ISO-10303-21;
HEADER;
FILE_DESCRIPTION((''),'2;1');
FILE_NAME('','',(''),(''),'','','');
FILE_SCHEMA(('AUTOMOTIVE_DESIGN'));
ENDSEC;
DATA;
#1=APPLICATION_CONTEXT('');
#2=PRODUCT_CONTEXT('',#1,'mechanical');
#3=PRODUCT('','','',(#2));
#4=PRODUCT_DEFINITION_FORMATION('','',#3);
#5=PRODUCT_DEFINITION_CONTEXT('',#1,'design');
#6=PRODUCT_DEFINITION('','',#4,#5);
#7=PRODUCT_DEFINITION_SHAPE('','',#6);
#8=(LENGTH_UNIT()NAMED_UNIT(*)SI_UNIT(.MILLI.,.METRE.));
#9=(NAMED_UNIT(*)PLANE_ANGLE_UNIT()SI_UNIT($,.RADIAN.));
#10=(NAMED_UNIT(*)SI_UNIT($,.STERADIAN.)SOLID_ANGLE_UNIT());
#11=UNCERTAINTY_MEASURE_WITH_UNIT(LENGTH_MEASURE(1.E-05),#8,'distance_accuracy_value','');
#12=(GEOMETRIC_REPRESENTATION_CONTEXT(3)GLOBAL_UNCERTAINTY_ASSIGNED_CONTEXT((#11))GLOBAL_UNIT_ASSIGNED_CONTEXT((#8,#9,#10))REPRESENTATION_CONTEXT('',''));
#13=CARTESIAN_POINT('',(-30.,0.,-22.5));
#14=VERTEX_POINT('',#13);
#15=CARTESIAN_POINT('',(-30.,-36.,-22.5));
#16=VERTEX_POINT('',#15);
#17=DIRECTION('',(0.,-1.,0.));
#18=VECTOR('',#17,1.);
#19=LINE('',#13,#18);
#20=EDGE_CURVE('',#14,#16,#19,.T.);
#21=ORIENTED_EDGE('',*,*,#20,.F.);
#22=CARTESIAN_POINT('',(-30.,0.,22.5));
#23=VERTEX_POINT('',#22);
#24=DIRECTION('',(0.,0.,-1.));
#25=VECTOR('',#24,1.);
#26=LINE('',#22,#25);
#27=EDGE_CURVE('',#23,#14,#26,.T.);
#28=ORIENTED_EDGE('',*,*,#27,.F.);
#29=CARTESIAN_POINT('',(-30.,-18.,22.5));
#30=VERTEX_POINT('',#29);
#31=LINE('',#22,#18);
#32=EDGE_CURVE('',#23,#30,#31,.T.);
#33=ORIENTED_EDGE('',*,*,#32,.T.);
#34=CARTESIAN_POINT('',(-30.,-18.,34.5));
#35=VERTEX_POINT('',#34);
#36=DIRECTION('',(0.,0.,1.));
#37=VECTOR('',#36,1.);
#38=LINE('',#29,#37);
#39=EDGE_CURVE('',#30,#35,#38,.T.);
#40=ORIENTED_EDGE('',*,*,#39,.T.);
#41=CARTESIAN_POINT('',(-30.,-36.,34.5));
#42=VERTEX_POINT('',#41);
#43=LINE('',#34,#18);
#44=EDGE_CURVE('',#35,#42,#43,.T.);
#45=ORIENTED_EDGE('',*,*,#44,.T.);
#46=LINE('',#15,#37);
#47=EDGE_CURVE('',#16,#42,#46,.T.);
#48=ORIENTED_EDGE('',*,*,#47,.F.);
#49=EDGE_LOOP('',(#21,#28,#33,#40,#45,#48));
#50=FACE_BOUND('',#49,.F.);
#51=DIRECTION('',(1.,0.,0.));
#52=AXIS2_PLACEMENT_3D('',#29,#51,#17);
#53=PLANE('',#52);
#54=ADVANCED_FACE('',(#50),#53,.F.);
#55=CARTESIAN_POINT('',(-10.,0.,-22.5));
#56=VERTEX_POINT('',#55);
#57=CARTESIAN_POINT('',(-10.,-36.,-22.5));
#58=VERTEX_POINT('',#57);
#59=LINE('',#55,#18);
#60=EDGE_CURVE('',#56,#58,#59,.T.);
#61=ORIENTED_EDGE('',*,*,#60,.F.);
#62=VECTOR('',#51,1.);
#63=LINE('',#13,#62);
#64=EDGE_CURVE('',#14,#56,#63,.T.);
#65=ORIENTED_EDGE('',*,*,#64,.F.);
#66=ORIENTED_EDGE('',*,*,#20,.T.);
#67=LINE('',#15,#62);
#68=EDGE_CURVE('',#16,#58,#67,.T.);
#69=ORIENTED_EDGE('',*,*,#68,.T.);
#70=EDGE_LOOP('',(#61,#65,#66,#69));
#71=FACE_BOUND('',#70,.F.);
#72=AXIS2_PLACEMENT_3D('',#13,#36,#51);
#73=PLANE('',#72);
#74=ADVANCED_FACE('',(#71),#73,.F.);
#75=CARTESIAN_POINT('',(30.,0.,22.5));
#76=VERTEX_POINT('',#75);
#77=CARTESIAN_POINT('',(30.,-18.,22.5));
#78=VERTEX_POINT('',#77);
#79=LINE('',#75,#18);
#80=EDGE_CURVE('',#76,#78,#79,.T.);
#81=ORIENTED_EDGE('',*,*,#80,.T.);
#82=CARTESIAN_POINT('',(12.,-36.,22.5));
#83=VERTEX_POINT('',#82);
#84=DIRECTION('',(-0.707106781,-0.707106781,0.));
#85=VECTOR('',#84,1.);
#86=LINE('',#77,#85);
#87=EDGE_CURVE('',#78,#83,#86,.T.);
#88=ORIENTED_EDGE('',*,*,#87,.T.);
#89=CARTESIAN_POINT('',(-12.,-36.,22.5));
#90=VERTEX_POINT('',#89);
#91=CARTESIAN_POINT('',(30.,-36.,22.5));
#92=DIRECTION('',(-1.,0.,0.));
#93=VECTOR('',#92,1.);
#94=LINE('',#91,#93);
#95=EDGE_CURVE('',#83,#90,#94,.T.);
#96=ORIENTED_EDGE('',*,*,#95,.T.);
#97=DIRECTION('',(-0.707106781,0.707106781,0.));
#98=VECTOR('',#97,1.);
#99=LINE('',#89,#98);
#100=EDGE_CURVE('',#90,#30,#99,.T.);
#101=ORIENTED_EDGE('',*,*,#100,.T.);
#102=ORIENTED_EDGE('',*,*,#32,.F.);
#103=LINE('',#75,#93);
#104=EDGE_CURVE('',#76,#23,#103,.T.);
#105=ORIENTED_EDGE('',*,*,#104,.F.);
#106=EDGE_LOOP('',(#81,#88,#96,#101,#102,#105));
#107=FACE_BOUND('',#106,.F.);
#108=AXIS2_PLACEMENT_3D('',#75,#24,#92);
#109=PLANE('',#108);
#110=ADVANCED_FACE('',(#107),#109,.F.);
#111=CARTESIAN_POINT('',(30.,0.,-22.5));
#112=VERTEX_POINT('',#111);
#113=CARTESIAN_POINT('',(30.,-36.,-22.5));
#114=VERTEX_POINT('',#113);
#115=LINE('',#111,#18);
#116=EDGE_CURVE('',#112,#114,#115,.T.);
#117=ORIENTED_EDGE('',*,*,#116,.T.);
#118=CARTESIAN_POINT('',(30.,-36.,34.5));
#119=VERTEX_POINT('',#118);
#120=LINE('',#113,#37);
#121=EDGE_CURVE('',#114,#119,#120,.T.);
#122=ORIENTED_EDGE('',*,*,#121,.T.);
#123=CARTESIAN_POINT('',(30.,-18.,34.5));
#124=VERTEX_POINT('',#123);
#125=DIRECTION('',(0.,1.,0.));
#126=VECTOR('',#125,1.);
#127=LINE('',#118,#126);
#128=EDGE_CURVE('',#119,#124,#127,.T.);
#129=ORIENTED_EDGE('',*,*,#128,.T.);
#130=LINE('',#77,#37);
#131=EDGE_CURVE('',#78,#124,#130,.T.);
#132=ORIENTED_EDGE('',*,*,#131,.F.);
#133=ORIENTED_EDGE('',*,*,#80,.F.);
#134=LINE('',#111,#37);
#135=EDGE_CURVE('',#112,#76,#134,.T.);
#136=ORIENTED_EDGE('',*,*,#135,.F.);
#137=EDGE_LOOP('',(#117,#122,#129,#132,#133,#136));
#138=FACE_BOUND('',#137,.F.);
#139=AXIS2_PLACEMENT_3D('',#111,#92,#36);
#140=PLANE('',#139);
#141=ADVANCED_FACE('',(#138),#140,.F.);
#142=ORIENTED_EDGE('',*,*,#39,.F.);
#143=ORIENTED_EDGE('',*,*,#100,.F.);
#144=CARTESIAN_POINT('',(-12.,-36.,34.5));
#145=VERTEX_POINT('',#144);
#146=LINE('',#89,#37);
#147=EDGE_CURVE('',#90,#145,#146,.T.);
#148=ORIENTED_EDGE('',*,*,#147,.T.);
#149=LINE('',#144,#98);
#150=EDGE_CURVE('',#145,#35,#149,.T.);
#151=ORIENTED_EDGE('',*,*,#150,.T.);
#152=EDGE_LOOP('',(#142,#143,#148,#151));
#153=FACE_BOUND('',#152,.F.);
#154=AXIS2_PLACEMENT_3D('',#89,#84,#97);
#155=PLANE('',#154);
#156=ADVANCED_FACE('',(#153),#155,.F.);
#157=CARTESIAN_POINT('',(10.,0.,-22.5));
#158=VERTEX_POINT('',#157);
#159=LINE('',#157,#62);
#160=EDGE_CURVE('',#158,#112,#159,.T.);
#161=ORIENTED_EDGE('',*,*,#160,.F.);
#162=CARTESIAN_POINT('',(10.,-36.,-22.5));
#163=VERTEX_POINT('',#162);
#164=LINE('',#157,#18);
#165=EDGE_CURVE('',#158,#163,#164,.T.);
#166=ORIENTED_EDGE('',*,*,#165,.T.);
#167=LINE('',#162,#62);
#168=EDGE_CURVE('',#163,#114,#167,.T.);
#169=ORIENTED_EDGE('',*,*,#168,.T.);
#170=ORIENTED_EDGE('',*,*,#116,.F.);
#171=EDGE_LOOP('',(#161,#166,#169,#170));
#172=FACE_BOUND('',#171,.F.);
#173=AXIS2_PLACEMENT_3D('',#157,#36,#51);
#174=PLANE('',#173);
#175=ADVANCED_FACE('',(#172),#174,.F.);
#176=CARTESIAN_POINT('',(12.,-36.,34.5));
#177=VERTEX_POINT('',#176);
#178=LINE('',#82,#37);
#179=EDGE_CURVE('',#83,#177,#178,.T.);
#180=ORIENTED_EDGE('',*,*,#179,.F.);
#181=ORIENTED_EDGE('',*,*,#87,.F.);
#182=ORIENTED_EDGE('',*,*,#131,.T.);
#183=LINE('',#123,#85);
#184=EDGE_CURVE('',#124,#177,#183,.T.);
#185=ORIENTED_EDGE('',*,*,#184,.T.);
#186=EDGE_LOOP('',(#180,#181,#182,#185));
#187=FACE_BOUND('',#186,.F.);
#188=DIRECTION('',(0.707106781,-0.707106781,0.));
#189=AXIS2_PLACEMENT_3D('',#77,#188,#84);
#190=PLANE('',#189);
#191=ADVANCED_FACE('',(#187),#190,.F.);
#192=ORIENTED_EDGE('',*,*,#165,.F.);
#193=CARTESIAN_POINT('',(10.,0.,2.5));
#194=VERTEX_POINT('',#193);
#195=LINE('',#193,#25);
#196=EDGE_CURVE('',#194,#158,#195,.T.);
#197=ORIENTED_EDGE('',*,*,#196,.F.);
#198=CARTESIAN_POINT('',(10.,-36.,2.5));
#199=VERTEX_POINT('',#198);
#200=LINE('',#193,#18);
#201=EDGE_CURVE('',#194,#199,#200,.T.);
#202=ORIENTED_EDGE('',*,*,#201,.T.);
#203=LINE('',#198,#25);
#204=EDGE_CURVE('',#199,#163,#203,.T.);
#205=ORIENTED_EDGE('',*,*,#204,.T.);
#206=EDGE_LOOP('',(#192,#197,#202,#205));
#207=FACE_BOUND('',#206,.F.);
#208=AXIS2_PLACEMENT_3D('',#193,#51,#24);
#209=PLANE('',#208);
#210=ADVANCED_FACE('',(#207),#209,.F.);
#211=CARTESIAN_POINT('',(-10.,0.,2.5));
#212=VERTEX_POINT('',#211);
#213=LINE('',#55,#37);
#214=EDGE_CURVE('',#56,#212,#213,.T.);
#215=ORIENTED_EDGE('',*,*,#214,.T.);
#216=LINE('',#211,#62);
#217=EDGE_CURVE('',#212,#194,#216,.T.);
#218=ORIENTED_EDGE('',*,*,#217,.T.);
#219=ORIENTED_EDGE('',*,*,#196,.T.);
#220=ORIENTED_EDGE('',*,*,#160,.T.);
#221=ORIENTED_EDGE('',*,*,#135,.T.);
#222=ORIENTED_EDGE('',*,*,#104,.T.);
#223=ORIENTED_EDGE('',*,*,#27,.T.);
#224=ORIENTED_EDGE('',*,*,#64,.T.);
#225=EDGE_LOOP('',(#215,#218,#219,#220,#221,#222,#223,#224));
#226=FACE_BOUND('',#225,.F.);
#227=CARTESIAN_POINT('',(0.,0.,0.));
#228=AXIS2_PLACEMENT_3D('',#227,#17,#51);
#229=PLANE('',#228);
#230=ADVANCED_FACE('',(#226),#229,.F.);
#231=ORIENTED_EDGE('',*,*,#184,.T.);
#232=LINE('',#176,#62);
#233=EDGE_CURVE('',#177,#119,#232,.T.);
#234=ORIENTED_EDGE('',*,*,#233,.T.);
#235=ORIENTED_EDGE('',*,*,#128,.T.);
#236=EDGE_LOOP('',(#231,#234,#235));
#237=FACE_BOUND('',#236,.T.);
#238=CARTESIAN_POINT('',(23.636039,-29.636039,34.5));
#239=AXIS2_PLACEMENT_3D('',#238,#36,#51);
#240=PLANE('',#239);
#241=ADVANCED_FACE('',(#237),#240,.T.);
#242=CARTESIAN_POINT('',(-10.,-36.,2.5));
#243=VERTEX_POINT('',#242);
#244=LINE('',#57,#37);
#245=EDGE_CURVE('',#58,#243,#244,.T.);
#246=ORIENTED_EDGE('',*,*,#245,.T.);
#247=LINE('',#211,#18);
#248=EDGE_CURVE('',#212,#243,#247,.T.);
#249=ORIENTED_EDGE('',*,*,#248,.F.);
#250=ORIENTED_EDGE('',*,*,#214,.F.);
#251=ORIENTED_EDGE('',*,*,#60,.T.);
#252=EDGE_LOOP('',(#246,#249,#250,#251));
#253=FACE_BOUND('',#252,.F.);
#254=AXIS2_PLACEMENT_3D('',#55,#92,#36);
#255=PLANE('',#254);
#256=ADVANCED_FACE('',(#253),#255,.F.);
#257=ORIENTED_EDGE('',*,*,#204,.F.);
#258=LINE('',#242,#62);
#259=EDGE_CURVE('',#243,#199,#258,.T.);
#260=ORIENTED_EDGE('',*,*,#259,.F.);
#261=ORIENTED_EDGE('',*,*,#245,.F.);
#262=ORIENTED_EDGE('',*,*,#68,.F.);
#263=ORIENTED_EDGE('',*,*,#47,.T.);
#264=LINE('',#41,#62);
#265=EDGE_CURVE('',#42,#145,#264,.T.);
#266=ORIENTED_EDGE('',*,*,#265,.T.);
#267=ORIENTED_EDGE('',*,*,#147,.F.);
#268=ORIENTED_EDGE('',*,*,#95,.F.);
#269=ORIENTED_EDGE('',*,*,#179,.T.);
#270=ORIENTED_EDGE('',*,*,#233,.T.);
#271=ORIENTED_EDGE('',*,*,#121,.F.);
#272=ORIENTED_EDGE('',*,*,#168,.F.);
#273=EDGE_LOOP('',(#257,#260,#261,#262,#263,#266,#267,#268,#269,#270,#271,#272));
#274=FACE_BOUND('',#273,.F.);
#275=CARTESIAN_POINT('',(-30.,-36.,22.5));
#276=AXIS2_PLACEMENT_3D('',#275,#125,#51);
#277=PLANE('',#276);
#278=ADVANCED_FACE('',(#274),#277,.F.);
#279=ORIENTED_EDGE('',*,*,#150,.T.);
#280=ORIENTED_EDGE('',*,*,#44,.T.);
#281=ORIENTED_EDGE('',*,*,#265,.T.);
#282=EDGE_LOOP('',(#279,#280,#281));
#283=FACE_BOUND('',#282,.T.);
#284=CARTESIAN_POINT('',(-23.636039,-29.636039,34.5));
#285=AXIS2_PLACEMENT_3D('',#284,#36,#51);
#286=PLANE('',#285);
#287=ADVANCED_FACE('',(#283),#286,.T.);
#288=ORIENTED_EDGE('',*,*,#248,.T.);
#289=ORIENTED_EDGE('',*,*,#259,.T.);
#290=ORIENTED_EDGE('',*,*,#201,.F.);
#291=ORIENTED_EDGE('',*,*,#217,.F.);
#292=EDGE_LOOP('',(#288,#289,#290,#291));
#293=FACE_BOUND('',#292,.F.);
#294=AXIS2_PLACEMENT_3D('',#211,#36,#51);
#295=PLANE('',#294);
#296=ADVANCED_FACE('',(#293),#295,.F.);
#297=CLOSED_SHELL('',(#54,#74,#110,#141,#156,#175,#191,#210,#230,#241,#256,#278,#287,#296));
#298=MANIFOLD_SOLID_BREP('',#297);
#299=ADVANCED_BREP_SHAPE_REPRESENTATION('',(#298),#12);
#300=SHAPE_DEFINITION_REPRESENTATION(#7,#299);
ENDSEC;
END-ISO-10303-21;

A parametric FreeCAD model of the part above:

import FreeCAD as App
import Part
import Sketcher
from FreeCAD import Vector


def add_polygon(sketch, points):
    """Adds a closed chain of lines whose ends are joined by coincident constraints."""
    first, n = sketch.GeometryCount, len(points)
    for a, b in zip(points, points[1:] + points[:1]):
        sketch.addGeometry(Part.LineSegment(App.Vector(*a, 0), App.Vector(*b, 0)), False)
    for i in range(n):
        sketch.addConstraint(Sketcher.Constraint("Coincident", first + i, 2, first + (i + 1) % n, 1))

doc = App.newDocument("Part")
body = doc.addObject("PartDesign::Body", "Body")

# Sketch on XZ plane
sketch1 = body.newObject("Sketcher::SketchObject", "Sketch")
sketch1.AttachmentSupport = (doc.getObject("XZ_Plane"), [""])
sketch1.MapMode = "FlatFace"
add_polygon(sketch1, [(30, -22.5), (30, 22.5), (-30, 22.5), (-30, -22.5), (-10, -22.5), (-10, 2.5), (10, 2.5), (10, -22.5)])  # lines 0-7
sketch1.addConstraint(Sketcher.Constraint("Vertical", 0))
sketch1.addConstraint(Sketcher.Constraint("Horizontal", 1))
sketch1.addConstraint(Sketcher.Constraint("Vertical", 2))
sketch1.addConstraint(Sketcher.Constraint("Horizontal", 3))
sketch1.addConstraint(Sketcher.Constraint("Vertical", 4))
sketch1.addConstraint(Sketcher.Constraint("Horizontal", 5))
sketch1.addConstraint(Sketcher.Constraint("Vertical", 6))
sketch1.addConstraint(Sketcher.Constraint("Horizontal", 7))
sketch1.addConstraint(Sketcher.Constraint("Symmetric", 0, 2, 2, 2, -1, 1))
sketch1.addConstraint(Sketcher.Constraint("Symmetric", 3, 2, 6, 2, -2))
sketch1.addConstraint(Sketcher.Constraint("Equal", 3, 5))
sketch1.addConstraint(Sketcher.Constraint("DistanceX", 1, 2, 1, 1, 60.0))
sketch1.addConstraint(Sketcher.Constraint("DistanceY", 0, 1, 0, 2, 45.0))
sketch1.addConstraint(Sketcher.Constraint("DistanceY", 4, 1, 4, 2, 25.0))
pad1 = body.newObject("PartDesign::Pad", "Pad")
pad1.Profile = sketch1
pad1.Length = 36

# Sketch on XY plane
sketch2 = body.newObject("Sketcher::SketchObject", "Sketch001")
sketch2.AttachmentSupport = (doc.getObject("XY_Plane"), [""])
sketch2.MapMode = "FlatFace"
sketch2.AttachmentOffset = App.Placement(Vector(0, 0, 22.5), App.Rotation())
add_polygon(sketch2, [(-30, -18), (-30, -36), (-12, -36)])  # lines 0-2
add_polygon(sketch2, [(30, -18), (12, -36), (30, -36)])  # lines 3-5
sketch2.addConstraint(Sketcher.Constraint("Vertical", 0))
sketch2.addConstraint(Sketcher.Constraint("Horizontal", 1))
sketch2.addConstraint(Sketcher.Constraint("Horizontal", 4))
sketch2.addConstraint(Sketcher.Constraint("Vertical", 5))
sketch2.addConstraint(Sketcher.Constraint("Symmetric", 1, 2, 3, 2, -2))
sketch2.addConstraint(Sketcher.Constraint("Symmetric", 2, 2, 5, 2, -2))
sketch2.addConstraint(Sketcher.Constraint("Perpendicular", 2, 3))
sketch2.addConstraint(Sketcher.Constraint("DistanceX", 1, 1, 1, 2, 18.0))
sketch2.addConstraint(Sketcher.Constraint("DistanceX", 0, 2, -1, 1, 30.0))
sketch2.addConstraint(Sketcher.Constraint("DistanceY", 0, 2, -1, 1, 36.0))
pad2 = body.newObject("PartDesign::Pad", "Pad001")
pad2.Profile = sketch2
pad2.Length = 12

doc.recompute()
